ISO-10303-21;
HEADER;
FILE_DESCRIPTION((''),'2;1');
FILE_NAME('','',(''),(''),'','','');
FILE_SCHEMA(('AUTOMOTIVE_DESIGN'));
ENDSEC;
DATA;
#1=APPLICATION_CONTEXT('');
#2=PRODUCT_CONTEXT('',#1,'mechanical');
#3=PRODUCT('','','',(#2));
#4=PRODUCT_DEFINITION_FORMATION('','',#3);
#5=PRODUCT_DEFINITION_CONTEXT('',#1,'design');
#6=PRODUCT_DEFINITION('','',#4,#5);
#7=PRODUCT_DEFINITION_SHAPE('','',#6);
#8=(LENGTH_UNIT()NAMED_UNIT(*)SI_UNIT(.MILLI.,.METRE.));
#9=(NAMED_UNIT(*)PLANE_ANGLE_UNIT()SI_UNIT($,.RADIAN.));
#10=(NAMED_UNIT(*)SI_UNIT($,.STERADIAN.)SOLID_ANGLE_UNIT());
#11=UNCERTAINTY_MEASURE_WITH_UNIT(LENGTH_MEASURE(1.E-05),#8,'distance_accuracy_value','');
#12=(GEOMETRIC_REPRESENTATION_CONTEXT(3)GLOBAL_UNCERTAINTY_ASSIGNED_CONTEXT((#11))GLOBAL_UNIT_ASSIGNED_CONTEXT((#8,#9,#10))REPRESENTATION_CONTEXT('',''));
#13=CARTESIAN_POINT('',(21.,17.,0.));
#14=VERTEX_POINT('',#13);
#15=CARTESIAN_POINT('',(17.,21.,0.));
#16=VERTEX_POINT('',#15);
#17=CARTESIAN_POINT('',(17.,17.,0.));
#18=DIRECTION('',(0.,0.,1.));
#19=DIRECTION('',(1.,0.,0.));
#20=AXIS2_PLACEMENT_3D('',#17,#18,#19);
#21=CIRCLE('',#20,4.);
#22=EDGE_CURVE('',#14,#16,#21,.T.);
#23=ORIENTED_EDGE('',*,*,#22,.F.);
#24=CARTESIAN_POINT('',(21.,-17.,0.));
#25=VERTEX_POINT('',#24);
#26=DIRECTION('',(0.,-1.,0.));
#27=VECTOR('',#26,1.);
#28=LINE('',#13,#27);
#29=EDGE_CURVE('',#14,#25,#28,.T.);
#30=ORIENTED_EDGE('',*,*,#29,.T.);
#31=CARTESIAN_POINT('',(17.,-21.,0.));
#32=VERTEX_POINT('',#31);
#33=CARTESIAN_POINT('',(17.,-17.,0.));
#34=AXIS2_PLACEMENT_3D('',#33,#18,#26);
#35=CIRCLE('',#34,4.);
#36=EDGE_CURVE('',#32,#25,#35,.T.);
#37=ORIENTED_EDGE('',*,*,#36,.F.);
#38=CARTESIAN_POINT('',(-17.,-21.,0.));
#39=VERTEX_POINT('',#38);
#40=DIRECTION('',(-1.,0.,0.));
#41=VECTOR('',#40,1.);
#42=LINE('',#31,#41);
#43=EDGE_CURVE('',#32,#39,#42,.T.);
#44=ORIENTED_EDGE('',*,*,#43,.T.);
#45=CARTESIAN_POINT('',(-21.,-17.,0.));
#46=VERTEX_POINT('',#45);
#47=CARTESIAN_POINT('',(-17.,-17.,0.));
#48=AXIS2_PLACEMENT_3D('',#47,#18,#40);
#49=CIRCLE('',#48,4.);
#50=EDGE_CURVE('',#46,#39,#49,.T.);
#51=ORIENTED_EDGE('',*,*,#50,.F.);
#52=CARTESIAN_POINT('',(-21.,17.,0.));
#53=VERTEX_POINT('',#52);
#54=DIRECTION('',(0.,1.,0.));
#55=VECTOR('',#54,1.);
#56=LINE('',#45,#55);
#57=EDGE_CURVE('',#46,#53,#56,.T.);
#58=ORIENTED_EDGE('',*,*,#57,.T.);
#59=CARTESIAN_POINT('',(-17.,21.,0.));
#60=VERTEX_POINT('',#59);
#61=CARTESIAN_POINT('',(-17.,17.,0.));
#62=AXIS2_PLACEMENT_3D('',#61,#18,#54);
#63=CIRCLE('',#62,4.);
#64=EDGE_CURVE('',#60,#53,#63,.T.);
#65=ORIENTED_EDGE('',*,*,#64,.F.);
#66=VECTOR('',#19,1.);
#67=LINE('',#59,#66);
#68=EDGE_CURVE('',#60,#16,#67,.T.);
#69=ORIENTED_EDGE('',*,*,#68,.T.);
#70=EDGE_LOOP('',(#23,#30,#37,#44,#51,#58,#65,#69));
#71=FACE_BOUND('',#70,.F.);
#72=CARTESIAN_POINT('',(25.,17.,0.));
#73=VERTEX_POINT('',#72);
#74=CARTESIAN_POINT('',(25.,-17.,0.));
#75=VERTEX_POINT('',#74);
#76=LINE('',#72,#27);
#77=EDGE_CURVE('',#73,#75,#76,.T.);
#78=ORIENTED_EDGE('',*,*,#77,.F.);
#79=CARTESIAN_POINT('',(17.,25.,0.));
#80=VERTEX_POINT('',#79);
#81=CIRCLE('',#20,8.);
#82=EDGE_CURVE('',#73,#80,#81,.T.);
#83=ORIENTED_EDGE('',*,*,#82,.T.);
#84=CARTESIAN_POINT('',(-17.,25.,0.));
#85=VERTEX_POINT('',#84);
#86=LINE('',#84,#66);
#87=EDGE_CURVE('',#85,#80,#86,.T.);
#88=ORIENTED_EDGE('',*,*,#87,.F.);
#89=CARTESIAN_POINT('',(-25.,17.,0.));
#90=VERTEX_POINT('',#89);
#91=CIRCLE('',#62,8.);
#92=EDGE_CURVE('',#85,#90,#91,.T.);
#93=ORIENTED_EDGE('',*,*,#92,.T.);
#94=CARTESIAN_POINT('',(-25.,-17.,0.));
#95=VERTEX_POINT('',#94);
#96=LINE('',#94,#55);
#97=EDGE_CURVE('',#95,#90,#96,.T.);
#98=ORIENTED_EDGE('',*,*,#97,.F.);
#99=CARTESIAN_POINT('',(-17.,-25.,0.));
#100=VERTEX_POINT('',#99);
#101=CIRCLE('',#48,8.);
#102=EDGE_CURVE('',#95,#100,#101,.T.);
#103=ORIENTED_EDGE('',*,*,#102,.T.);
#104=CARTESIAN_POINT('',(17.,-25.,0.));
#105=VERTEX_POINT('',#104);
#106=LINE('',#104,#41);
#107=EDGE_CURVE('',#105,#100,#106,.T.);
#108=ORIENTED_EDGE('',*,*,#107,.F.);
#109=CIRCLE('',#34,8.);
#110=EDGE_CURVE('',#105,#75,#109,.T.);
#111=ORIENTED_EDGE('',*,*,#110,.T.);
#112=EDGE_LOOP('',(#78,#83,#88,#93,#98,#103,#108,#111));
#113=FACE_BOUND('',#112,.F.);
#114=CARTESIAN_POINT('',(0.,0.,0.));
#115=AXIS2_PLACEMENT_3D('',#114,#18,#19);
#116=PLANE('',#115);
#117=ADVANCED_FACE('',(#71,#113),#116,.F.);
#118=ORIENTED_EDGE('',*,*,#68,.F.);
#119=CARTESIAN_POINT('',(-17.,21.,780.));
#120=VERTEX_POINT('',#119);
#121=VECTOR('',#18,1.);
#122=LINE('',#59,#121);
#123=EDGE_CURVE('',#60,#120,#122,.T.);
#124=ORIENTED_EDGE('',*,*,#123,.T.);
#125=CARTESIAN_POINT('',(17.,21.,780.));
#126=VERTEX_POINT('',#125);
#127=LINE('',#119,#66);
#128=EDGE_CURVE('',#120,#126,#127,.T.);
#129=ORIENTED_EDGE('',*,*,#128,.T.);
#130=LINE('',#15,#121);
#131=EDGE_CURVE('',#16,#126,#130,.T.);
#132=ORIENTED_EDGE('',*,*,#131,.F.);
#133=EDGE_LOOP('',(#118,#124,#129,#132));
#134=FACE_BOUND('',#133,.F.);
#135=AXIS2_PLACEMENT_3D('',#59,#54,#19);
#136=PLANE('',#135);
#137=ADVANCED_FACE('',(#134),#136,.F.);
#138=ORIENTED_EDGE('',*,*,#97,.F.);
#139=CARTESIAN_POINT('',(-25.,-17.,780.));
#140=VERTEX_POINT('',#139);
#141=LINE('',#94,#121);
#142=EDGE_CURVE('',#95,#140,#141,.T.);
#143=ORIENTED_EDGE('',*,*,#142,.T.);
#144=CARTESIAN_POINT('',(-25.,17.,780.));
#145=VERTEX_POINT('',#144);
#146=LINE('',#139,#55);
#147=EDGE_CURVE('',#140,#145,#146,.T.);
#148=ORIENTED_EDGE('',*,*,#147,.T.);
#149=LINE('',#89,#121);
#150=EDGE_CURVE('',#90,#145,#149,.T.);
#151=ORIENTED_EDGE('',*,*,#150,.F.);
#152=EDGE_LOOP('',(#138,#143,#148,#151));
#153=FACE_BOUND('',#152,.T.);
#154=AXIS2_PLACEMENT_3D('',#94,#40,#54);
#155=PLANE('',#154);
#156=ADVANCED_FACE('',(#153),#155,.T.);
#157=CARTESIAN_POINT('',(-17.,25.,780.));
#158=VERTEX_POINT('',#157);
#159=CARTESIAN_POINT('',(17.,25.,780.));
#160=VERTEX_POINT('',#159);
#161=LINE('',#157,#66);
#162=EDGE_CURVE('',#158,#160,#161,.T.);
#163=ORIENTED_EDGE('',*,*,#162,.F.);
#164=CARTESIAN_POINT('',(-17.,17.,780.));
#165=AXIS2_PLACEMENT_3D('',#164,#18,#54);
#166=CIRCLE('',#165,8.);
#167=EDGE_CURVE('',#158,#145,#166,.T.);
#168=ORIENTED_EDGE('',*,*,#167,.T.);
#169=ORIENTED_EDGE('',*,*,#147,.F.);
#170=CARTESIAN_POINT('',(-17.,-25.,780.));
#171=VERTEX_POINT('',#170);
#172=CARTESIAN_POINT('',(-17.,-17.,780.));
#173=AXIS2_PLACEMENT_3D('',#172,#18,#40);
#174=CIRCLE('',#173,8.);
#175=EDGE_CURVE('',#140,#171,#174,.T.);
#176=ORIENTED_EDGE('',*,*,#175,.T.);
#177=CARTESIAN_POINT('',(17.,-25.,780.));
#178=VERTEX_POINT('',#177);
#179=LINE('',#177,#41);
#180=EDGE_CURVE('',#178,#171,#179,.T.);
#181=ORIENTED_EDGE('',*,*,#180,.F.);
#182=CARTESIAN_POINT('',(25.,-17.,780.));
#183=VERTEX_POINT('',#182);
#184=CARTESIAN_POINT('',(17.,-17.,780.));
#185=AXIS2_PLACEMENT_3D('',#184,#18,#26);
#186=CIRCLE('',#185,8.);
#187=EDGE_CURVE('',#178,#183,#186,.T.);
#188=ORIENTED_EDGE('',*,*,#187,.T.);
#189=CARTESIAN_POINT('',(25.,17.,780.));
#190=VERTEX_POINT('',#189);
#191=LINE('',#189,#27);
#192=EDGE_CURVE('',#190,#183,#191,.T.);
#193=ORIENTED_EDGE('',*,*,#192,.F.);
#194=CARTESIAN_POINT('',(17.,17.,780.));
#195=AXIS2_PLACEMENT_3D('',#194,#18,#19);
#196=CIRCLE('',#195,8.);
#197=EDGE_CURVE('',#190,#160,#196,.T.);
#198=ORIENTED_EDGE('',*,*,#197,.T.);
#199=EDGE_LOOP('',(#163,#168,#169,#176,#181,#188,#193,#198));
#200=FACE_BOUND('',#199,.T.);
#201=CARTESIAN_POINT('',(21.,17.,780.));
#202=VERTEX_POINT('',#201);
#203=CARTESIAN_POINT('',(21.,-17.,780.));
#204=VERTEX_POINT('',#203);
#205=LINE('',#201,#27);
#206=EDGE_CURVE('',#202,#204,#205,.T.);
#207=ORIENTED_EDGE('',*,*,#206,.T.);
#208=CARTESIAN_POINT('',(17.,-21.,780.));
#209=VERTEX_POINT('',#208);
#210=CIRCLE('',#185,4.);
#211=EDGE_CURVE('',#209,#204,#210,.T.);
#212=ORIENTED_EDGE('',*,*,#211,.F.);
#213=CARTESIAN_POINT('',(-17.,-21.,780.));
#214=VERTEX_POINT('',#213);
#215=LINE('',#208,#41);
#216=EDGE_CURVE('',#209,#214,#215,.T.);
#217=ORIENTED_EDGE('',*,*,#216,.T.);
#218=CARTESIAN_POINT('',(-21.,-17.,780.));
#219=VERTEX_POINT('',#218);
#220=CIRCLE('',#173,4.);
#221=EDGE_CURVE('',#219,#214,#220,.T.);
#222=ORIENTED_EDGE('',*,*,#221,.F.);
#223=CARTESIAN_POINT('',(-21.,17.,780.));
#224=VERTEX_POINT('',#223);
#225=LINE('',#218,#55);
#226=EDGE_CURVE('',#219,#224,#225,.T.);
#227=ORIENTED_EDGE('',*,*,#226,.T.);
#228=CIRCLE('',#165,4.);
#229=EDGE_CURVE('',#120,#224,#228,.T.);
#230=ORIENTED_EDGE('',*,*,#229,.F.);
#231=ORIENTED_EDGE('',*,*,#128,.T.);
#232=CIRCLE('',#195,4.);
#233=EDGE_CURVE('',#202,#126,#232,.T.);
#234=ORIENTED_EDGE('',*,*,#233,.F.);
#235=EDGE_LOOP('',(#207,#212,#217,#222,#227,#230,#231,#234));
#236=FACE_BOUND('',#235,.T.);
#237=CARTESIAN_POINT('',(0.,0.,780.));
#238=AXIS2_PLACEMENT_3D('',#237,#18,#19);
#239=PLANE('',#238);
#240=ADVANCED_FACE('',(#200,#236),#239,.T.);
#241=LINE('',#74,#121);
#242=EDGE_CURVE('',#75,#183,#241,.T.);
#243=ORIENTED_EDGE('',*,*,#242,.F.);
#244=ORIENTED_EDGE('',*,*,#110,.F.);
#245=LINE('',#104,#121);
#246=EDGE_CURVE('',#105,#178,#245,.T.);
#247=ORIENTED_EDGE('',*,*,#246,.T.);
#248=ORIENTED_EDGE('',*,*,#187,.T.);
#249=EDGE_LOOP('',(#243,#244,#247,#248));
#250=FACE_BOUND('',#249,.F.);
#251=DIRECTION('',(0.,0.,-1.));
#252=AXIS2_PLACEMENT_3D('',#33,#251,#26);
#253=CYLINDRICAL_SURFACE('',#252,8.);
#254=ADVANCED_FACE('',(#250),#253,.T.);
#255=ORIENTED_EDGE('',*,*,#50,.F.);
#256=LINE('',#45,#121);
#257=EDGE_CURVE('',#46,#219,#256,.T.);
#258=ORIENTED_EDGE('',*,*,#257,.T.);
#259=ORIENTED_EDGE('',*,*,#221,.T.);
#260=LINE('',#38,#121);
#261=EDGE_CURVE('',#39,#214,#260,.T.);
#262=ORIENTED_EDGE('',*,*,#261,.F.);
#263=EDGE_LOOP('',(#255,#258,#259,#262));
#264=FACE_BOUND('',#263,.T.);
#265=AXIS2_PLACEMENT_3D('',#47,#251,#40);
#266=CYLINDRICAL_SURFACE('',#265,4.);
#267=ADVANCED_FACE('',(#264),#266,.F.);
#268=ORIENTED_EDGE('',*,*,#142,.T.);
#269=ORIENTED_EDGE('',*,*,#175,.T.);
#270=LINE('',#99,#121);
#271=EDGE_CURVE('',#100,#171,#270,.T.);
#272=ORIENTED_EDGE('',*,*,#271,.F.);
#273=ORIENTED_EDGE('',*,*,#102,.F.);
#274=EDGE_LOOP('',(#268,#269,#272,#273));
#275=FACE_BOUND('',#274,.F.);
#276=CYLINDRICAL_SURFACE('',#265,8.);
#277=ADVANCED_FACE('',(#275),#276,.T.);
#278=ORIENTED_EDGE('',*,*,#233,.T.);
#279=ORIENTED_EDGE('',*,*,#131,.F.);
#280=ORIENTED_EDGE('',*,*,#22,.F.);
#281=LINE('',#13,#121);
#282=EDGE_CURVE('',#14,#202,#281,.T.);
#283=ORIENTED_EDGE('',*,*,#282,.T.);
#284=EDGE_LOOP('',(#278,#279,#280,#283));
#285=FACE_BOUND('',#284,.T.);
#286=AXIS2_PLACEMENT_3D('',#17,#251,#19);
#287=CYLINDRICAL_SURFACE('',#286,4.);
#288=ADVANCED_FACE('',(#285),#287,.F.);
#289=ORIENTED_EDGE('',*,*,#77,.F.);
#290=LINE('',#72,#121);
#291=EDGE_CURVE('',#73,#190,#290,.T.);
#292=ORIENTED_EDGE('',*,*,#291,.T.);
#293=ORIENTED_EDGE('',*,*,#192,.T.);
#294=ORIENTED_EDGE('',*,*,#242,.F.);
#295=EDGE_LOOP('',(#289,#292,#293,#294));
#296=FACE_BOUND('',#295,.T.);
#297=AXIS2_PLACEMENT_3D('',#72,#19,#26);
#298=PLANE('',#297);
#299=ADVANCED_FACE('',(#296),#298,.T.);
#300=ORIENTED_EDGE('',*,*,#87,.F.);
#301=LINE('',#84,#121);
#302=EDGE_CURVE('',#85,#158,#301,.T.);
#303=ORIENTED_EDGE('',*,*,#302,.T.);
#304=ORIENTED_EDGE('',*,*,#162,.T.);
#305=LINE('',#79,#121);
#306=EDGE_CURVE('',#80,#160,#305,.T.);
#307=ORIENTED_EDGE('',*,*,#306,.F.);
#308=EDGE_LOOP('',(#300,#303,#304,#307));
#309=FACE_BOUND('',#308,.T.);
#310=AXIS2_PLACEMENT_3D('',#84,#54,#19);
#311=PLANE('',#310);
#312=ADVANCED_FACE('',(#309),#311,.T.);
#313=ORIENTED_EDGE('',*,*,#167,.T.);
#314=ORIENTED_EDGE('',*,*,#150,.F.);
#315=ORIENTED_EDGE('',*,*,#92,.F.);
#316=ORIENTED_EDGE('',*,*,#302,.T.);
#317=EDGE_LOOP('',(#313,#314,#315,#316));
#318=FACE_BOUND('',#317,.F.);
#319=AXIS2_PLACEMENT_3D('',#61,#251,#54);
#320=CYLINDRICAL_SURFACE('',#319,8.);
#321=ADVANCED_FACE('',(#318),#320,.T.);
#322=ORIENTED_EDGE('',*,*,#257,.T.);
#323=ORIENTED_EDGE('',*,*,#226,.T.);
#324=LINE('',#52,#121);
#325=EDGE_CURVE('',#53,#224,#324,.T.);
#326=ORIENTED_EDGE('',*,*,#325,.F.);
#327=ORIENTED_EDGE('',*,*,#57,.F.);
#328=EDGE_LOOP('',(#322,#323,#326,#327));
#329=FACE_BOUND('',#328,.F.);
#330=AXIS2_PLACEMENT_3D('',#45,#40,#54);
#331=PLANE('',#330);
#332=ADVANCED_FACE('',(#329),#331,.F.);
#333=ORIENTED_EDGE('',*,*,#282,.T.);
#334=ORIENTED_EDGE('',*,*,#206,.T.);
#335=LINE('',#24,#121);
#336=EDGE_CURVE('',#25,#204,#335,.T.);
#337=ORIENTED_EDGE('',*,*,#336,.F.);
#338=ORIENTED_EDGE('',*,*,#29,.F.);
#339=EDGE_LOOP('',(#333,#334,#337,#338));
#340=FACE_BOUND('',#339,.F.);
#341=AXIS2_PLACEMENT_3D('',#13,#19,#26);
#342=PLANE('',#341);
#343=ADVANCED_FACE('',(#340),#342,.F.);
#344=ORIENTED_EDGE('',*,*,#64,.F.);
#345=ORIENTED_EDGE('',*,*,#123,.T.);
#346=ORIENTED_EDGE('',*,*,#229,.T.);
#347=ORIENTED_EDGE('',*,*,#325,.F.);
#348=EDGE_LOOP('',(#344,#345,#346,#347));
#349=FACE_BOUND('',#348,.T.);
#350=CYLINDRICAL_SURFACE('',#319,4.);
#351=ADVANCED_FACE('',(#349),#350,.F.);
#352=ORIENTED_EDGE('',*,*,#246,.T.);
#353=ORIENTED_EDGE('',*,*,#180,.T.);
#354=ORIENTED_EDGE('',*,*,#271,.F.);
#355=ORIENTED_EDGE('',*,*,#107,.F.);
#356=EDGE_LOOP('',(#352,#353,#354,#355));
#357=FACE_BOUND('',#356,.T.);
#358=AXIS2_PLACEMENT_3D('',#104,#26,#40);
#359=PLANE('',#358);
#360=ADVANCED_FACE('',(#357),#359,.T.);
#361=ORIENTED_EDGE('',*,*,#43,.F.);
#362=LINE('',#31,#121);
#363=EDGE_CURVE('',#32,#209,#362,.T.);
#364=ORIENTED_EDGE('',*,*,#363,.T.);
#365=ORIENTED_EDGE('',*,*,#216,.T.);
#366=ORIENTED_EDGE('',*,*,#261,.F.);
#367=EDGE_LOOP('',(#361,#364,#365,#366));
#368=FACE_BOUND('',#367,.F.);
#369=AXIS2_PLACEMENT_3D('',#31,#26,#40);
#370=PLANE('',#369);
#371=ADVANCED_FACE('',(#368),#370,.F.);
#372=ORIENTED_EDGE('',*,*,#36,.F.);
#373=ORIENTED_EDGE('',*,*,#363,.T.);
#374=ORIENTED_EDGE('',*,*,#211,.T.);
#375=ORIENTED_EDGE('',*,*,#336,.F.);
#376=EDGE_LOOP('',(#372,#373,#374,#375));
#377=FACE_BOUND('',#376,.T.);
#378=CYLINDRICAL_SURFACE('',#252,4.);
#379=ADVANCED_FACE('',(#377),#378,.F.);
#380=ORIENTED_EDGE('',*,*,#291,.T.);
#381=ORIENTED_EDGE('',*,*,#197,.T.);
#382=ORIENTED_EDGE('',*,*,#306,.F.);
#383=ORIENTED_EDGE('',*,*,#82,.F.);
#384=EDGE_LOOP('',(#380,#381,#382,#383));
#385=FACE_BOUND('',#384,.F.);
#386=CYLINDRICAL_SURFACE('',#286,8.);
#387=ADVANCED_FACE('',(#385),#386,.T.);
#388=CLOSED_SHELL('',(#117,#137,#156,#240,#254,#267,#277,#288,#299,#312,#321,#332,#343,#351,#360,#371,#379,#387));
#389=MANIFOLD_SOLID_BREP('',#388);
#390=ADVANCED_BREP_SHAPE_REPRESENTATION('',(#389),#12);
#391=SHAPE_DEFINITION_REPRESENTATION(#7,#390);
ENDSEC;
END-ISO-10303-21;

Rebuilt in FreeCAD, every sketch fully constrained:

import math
import FreeCAD as App
import Part
import Sketcher
Q = App.Units.Quantity

doc = App.newDocument("Part")
body = doc.addObject("PartDesign::Body", "Body")

# Sketch on XY plane
sketch1 = body.newObject("Sketcher::SketchObject", "Sketch")
sketch1.AttachmentSupport = (doc.getObject("XY_Plane"), [""])
sketch1.MapMode = "FlatFace"
sketch1.addGeometry([
    Part.LineSegment(App.Vector(-25, 17, 0), App.Vector(-25, -17, 0)),  # 0
    Part.ArcOfCircle(Part.Circle(App.Vector(-17, -17, 0), App.Vector(0, 0, 1), 8), math.radians(180), math.radians(270)),  # 1
    Part.LineSegment(App.Vector(-17, -25, 0), App.Vector(17, -25, 0)),  # 2
    Part.ArcOfCircle(Part.Circle(App.Vector(17, -17, 0), App.Vector(0, 0, 1), 8), math.radians(-90), math.radians(0)),  # 3
    Part.LineSegment(App.Vector(25, -17, 0), App.Vector(25, 17, 0)),  # 4
    Part.ArcOfCircle(Part.Circle(App.Vector(17, 17, 0), App.Vector(0, 0, 1), 8), math.radians(0), math.radians(90)),  # 5
    Part.LineSegment(App.Vector(17, 25, 0), App.Vector(-17, 25, 0)),  # 6
    Part.ArcOfCircle(Part.Circle(App.Vector(-17, 17, 0), App.Vector(0, 0, 1), 8), math.radians(90), math.radians(180)),  # 7
    Part.ArcOfCircle(Part.Circle(App.Vector(-17, 17, 0), App.Vector(0, 0, 1), 4), math.radians(90), math.radians(180)),  # 8
    Part.LineSegment(App.Vector(-17, 21, 0), App.Vector(17, 21, 0)),  # 9
    Part.ArcOfCircle(Part.Circle(App.Vector(17, 17, 0), App.Vector(0, 0, 1), 4), math.radians(0), math.radians(90)),  # 10
    Part.LineSegment(App.Vector(21, 17, 0), App.Vector(21, -17, 0)),  # 11
    Part.ArcOfCircle(Part.Circle(App.Vector(17, -17, 0), App.Vector(0, 0, 1), 4), math.radians(-90), math.radians(0)),  # 12
    Part.LineSegment(App.Vector(17, -21, 0), App.Vector(-17, -21, 0)),  # 13
    Part.ArcOfCircle(Part.Circle(App.Vector(-17, -17, 0), App.Vector(0, 0, 1), 4), math.radians(180), math.radians(270)),  # 14
    Part.LineSegment(App.Vector(-21, -17, 0), App.Vector(-21, 17, 0)),  # 15
], False)
sketch1.addConstraint([
    Sketcher.Constraint("Tangent", 0, 2, 1, 1),
    Sketcher.Constraint("Tangent", 1, 2, 2, 1),
    Sketcher.Constraint("Tangent", 2, 2, 3, 1),
    Sketcher.Constraint("Tangent", 3, 2, 4, 1),
    Sketcher.Constraint("Tangent", 4, 2, 5, 1),
    Sketcher.Constraint("Tangent", 5, 2, 6, 1),
    Sketcher.Constraint("Tangent", 6, 2, 7, 1),
    Sketcher.Constraint("Tangent", 7, 2, 0, 1),
    Sketcher.Constraint("Tangent", 8, 1, 9, 1),
    Sketcher.Constraint("Tangent", 9, 2, 10, 2),
    Sketcher.Constraint("Tangent", 10, 1, 11, 1),
    Sketcher.Constraint("Tangent", 11, 2, 12, 2),
    Sketcher.Constraint("Tangent", 12, 1, 13, 1),
    Sketcher.Constraint("Tangent", 13, 2, 14, 2),
    Sketcher.Constraint("Tangent", 14, 1, 15, 1),
    Sketcher.Constraint("Tangent", 15, 2, 8, 2),
    Sketcher.Constraint("Vertical", 0),
    Sketcher.Constraint("Horizontal", 2),
    Sketcher.Constraint("Vertical", 4),
    Sketcher.Constraint("Horizontal", 6),
    Sketcher.Constraint("Horizontal", 9),
    Sketcher.Constraint("Vertical", 11),
    Sketcher.Constraint("Horizontal", 13),
    Sketcher.Constraint("Vertical", 15),
    Sketcher.Constraint("Coincident", 8, 3, 7, 3),
    Sketcher.Constraint("Coincident", 10, 3, 5, 3),
    Sketcher.Constraint("Coincident", 12, 3, 3, 3),
    Sketcher.Constraint("Equal", 1, 3),
    Sketcher.Constraint("Equal", 3, 5),
    Sketcher.Constraint("Equal", 5, 7),
    Sketcher.Constraint("Equal", 12, 14),
    Sketcher.Constraint("Symmetric", 1, 3, 5, 3, -1, 1),
    Sketcher.Constraint("Equal", 13, 0),
    Sketcher.Constraint("Radius", 1, Q("8 mm")),
    Sketcher.Constraint("Radius", 8, Q("4 mm")),
    Sketcher.Constraint("DistanceX", 0, 2, -1, 1, Q("25 mm")),
])
pad1 = body.newObject("PartDesign::Pad", "Pad")
pad1.Profile = sketch1
pad1.Length = 780

doc.recompute()
